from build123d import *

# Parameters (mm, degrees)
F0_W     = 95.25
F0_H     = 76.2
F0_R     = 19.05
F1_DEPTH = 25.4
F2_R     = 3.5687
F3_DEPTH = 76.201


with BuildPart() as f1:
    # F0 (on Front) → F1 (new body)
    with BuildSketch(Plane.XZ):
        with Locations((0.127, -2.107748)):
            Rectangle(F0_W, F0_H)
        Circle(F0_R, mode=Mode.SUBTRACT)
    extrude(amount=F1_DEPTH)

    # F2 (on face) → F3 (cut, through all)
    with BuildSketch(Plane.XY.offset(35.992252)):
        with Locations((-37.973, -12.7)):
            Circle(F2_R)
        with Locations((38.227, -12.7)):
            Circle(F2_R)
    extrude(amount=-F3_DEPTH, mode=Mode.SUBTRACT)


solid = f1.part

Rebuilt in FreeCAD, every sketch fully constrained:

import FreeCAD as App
import Part
import Sketcher
from FreeCAD import Vector
Q = App.Units.Quantity


def add_polygon(sketch, points):
    """Adds a closed chain of lines whose ends are joined by coincident constraints."""
    first, n = sketch.GeometryCount, len(points)
    for a, b in zip(points, points[1:] + points[:1]):
        sketch.addGeometry(Part.LineSegment(App.Vector(*a, 0), App.Vector(*b, 0)), False)
    for i in range(n):
        sketch.addConstraint(Sketcher.Constraint("Coincident", first + i, 2, first + (i + 1) % n, 1))

doc = App.newDocument("Part")
body = doc.addObject("PartDesign::Body", "Body")

# Sketch on XZ plane
sketch1 = body.newObject("Sketcher::SketchObject", "Sketch")
sketch1.AttachmentSupport = (doc.getObject("XZ_Plane"), [""])
sketch1.MapMode = "FlatFace"
add_polygon(sketch1, [(-47, 36), (-47, -40), (48, -40), (48, 36)])  # lines 0-3
sketch1.addGeometry(Part.Circle(Vector(0, 0, 0), Vector(0, 0, 1), 19), False)  # 4
sketch1.addConstraint([
    Sketcher.Constraint("Vertical", 0),
    Sketcher.Constraint("Horizontal", 1),
    Sketcher.Constraint("Vertical", 2),
    Sketcher.Constraint("Horizontal", 3),
    Sketcher.Constraint("Coincident", 4, 3, -1, 1),
    Sketcher.Constraint("Diameter", 4, Q("1.5 in")),
    Sketcher.Constraint("DistanceY", 0, 2, 0, 1, Q("3 in")),
    Sketcher.Constraint("DistanceX", 1, 1, 1, 2, Q("3.75 in")),
    Sketcher.Constraint("DistanceX", 0, 2, -1, 1, Q("1.87 in")),
    Sketcher.Constraint("DistanceY", 0, 2, -1, 1, Q("40.207748 mm")),
])
pad1 = body.newObject("PartDesign::Pad", "Pad")
pad1.Profile = sketch1
pad1.Length = Q("1 in")

# Sketch on XY plane
sketch2 = body.newObject("Sketcher::SketchObject", "Sketch001")
sketch2.AttachmentSupport = (doc.getObject("XY_Plane"), [""])
sketch2.MapMode = "FlatFace"
sketch2.AttachmentOffset = App.Placement(Vector(0, 0, 35.992252), App.Rotation())
sketch2.addGeometry([
    Part.Circle(Vector(-38, -12.7, 0), Vector(0, 0, 1), 3.6),
    Part.Circle(Vector(38.2, -12.7, 0), Vector(0, 0, 1), 3.6),
], False)
sketch2.addConstraint([
    Sketcher.Constraint("Equal", 0, 1),
    Sketcher.Constraint("Horizontal", 0, 3, 1, 3),
    Sketcher.Constraint("Diameter", 0, Q("0.281 in")),
    Sketcher.Constraint("DistanceX", 0, 3, 1, 3, Q("3 in")),
    Sketcher.Constraint("DistanceY", 0, 3, -1, 1, Q("0.5 in")),
    Sketcher.Constraint("DistanceX", 0, 3, -1, 1, Q("1.495 in")),
])
pocket1 = body.newObject("PartDesign::Pocket", "Pocket")
pocket1.Profile = sketch2
pocket1.Type = "ThroughAll"

doc.recompute()
